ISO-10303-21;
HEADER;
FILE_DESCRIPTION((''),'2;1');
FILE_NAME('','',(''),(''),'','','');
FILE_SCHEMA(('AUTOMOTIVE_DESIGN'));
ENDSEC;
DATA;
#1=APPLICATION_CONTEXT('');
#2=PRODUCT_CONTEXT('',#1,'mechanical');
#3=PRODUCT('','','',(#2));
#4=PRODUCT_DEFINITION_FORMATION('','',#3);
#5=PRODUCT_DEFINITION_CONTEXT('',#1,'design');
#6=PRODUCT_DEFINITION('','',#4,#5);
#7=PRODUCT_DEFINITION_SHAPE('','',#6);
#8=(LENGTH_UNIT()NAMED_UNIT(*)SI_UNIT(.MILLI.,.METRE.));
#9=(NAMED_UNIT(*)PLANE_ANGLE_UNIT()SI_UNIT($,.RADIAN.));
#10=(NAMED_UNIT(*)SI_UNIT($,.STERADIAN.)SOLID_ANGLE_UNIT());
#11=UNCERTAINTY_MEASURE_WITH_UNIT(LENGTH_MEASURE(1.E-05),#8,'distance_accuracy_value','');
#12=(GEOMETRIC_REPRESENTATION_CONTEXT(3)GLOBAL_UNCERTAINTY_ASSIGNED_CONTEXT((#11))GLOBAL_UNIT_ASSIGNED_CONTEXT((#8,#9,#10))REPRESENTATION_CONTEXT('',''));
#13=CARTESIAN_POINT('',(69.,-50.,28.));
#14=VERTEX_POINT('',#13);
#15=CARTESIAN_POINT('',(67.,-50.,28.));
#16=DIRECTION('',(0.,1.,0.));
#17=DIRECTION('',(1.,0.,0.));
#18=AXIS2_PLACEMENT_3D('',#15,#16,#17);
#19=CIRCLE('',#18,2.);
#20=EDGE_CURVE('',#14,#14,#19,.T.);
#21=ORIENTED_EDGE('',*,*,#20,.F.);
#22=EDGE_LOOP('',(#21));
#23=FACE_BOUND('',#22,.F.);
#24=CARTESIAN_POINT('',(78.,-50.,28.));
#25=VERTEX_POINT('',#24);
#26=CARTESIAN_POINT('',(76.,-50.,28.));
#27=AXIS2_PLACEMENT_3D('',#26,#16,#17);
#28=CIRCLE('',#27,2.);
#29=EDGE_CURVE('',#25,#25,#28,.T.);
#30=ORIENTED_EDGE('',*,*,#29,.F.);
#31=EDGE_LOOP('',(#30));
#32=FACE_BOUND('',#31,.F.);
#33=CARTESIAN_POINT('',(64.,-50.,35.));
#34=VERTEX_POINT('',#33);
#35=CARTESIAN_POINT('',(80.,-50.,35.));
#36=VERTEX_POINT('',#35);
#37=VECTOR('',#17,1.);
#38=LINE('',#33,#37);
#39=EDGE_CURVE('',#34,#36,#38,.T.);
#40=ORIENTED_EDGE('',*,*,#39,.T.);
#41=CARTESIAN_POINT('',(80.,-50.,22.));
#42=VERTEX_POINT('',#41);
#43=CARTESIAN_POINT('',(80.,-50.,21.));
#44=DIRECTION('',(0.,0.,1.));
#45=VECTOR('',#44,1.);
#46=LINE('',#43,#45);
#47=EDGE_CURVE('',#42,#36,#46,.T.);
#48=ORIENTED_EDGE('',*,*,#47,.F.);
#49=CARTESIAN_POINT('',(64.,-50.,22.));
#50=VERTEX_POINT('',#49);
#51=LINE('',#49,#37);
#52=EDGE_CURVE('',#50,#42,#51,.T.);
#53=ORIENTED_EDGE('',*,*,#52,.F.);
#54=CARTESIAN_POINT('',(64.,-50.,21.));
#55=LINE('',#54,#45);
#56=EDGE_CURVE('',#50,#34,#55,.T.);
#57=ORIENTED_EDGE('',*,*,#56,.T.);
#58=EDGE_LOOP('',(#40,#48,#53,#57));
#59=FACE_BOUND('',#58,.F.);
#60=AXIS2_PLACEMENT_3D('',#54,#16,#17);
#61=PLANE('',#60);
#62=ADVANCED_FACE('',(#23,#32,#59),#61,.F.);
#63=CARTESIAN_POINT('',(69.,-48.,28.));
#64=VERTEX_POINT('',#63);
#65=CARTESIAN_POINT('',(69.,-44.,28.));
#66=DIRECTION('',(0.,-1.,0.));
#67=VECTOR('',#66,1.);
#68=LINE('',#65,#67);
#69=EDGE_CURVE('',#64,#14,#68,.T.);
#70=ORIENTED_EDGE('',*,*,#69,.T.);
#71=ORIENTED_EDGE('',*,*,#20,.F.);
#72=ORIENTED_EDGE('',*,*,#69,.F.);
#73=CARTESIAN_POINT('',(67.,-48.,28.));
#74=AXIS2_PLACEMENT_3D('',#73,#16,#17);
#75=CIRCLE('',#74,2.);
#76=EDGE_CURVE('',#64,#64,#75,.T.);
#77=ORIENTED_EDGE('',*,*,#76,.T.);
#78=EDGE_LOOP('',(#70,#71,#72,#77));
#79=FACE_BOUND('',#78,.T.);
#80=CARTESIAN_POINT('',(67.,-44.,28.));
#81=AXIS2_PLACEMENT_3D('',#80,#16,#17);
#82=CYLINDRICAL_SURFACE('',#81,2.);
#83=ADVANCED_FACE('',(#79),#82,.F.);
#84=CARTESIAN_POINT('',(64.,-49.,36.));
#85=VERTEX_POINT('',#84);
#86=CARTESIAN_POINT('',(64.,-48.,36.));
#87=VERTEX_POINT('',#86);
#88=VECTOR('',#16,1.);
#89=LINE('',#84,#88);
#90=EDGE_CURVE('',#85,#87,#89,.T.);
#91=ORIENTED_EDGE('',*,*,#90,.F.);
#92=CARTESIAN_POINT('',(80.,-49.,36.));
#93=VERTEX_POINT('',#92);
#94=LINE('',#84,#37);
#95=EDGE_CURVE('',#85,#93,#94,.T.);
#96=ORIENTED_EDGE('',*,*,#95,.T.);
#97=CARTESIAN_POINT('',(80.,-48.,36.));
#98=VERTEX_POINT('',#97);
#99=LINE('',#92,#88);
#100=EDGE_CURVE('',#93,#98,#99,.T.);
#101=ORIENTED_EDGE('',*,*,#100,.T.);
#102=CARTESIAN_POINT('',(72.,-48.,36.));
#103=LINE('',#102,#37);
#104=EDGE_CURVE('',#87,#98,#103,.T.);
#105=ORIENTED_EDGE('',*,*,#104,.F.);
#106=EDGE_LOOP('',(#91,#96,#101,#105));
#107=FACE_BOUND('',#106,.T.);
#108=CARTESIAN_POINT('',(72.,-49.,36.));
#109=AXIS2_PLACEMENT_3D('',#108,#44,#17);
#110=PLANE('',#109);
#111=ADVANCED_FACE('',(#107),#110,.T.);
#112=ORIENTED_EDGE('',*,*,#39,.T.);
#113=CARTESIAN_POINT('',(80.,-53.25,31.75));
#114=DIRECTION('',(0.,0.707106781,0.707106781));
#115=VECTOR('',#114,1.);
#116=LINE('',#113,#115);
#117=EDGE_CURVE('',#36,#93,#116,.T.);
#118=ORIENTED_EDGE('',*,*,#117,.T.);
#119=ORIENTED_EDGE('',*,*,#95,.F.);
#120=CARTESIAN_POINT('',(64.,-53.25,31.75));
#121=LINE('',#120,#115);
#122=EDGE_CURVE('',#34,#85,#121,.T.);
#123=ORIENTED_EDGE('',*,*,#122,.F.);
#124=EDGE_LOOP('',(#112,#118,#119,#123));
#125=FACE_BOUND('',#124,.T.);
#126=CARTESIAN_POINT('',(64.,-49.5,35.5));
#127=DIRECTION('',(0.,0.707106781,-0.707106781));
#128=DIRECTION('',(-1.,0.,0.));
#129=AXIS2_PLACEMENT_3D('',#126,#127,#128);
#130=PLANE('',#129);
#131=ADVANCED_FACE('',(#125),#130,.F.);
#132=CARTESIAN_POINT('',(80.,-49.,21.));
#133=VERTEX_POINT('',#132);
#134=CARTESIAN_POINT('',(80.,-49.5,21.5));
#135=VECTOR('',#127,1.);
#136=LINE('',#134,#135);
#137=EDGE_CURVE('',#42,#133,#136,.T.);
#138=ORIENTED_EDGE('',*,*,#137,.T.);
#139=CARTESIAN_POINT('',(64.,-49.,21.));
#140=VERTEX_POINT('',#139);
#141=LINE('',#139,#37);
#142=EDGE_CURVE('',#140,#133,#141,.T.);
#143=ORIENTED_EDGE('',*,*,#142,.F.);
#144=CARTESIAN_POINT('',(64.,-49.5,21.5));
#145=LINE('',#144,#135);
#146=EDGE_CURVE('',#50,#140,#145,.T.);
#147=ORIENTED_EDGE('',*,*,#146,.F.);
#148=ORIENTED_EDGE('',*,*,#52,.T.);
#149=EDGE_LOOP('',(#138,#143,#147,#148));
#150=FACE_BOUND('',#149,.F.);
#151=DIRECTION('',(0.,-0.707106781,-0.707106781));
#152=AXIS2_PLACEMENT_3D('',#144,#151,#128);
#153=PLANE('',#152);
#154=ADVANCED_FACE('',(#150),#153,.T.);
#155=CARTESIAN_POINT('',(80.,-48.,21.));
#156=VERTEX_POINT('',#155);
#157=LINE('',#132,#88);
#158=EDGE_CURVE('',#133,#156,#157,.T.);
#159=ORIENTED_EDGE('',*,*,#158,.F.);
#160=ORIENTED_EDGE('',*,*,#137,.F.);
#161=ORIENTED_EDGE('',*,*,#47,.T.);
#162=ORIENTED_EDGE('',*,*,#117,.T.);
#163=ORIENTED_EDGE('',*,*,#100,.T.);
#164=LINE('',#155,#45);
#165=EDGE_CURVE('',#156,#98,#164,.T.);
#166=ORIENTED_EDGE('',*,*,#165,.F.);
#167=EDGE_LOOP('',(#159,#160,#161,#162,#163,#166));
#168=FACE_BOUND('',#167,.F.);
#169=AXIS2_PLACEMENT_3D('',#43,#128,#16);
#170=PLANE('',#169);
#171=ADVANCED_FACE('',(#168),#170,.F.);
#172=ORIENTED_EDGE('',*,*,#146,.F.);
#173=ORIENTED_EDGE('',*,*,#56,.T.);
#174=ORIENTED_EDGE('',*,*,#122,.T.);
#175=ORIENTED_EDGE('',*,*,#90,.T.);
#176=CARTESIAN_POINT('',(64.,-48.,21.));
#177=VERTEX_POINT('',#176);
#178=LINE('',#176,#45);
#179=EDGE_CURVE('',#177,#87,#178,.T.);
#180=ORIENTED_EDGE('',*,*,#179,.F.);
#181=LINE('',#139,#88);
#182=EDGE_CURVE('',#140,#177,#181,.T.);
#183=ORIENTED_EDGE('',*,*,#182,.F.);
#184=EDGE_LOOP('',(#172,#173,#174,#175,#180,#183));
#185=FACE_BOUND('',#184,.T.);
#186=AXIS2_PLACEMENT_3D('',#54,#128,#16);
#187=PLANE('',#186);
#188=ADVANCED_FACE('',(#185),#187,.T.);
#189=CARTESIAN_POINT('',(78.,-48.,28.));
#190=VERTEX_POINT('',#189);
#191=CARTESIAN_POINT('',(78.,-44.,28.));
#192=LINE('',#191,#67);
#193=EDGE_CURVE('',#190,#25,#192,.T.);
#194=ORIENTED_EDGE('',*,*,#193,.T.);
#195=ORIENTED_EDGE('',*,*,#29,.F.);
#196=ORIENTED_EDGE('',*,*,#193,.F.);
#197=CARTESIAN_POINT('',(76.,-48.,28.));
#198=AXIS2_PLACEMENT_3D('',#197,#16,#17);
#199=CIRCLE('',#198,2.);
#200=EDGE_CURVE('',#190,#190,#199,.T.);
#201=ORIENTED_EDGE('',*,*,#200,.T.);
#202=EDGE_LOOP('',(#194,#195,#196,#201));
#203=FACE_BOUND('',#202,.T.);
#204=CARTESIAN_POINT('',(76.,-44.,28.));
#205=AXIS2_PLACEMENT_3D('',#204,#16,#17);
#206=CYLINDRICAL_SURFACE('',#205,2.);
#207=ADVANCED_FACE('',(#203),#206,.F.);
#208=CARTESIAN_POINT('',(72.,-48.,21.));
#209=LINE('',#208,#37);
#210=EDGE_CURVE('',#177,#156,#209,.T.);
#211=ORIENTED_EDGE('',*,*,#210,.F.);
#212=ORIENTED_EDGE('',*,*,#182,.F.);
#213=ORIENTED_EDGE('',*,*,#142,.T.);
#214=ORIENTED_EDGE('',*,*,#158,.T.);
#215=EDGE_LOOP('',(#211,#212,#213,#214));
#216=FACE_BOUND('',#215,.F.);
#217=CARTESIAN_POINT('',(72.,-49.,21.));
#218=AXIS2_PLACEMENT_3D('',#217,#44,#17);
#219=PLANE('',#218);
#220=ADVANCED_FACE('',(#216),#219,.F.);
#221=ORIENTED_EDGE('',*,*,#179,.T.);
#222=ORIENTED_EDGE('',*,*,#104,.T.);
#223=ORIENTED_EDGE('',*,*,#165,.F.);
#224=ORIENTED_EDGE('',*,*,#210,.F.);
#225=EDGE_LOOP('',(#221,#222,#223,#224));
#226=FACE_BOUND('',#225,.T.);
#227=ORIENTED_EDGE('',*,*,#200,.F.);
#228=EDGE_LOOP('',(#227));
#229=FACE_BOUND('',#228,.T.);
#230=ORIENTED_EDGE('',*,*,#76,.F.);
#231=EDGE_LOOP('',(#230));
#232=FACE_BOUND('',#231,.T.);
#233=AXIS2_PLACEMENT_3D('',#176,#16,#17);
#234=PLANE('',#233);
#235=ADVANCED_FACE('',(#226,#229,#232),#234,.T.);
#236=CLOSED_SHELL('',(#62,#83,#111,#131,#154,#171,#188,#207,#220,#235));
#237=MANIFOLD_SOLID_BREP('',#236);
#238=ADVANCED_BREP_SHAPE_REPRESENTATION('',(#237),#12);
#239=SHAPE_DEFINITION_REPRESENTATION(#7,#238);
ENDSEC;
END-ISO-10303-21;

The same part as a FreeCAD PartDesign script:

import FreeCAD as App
import Part
import Sketcher
from FreeCAD import Vector
Q = App.Units.Quantity


def edges_at(feature, points):
    """Names of the edges that pass closest to the given points."""
    edges = feature.Shape.Edges
    near = lambda p: min(range(len(edges)), key=lambda i: edges[i].distToShape(Part.Vertex(*p))[0])
    return sorted({f"Edge{near(p) + 1}" for p in points})

doc = App.newDocument("Part")
body = doc.addObject("PartDesign::Body", "Body")

sketch1 = body.newObject("Sketcher::SketchObject", "Sketch")
sketch1.AttachmentSupport = (doc.getObject("XY_Plane"), [""])
sketch1.MapMode = "FlatFace"
sketch1.addGeometry(Part.Circle(Vector(0, 0, 0), Vector(0, 0, 1), 2), False)
sketch1.addConstraint([
    Sketcher.Constraint("Coincident", 0, 3, -1, 1),
    Sketcher.Constraint("Diameter", 0, Q("4 mm")),
])
pad1 = body.newObject("PartDesign::Pad", "Pad")
pad1.Profile = sketch1
pad1.Length = 10
body2 = doc.addObject("PartDesign::Body", "Body001")
doc.recompute()

body.Placement = App.Placement(Vector(0, 0, 0), App.Rotation(Vector(1, 0, 0), 90))
boolean = body2.newObject("PartDesign::Boolean", "Boolean")
boolean.Type = "Fuse"
boolean.addObjects([body])
body3 = doc.addObject("PartDesign::Body", "Body002")
doc.recompute()

body2.Placement = App.Placement(Vector(76, -37, 30), App.Rotation(Vector(0, 0, 1), 0))
boolean2 = body3.newObject("PartDesign::Boolean", "Boolean001")
boolean2.Type = "Fuse"
boolean2.addObjects([body2])
body4 = doc.addObject("PartDesign::Body", "Body003")

sketch2 = body4.newObject("Sketcher::SketchObject", "Sketch001")
sketch2.AttachmentSupport = (doc.getObject("XY_Plane003"), [""])
sketch2.MapMode = "FlatFace"
sketch2.addGeometry(Part.Circle(Vector(0, 0, 0), Vector(0, 0, 1), 2), False)
sketch2.addConstraint([
    Sketcher.Constraint("Coincident", 0, 3, -1, 1),
    Sketcher.Constraint("Diameter", 0, Q("4 mm")),
])
pad2 = body4.newObject("PartDesign::Pad", "Pad001")
pad2.Profile = sketch2
pad2.Length = 10
body5 = doc.addObject("PartDesign::Body", "Body004")
doc.recompute()

body4.Placement = App.Placement(Vector(0, 0, 0), App.Rotation(Vector(1, 0, 0), 90))
boolean3 = body5.newObject("PartDesign::Boolean", "Boolean002")
boolean3.Type = "Fuse"
boolean3.addObjects([body4])
body6 = doc.addObject("PartDesign::Body", "Body005")
body6.AllowCompound = True
doc.recompute()

body5.Placement = App.Placement(Vector(67, -37, 30), App.Rotation(Vector(0, 0, 1), 0))
boolean4 = body6.newObject("PartDesign::Boolean", "Boolean003")
boolean4.Type = "Fuse"
boolean4.addObjects([body5])
doc.recompute()

boolean5 = body6.newObject("PartDesign::Boolean", "Boolean004")
boolean5.Type = "Fuse"
boolean5.addObjects([body3])
body7 = doc.addObject("PartDesign::Body", "Body006")

sketch3 = body7.newObject("Sketcher::SketchObject", "Sketch002")
sketch3.AttachmentSupport = (doc.getObject("XY_Plane006"), [""])
sketch3.MapMode = "FlatFace"
sketch3.AttachmentOffset = App.Placement(Vector(0, 0, 23), App.Rotation())
sketch3.addGeometry([
    Part.LineSegment(Vector(64, -41, 0), Vector(64, -43, 0)),
    Part.LineSegment(Vector(64, -43, 0), Vector(80, -43, 0)),
    Part.LineSegment(Vector(80, -43, 0), Vector(80, -41, 0)),
    Part.LineSegment(Vector(80, -41, 0), Vector(64, -41, 0)),
], False)
sketch3.addConstraint([
    Sketcher.Constraint("Coincident", 0, 2, 1, 1),
    Sketcher.Constraint("Coincident", 1, 2, 2, 1),
    Sketcher.Constraint("Coincident", 2, 2, 3, 1),
    Sketcher.Constraint("Coincident", 3, 2, 0, 1),
    Sketcher.Constraint("Vertical", 0),
    Sketcher.Constraint("Horizontal", 1),
    Sketcher.Constraint("Vertical", 2),
    Sketcher.Constraint("Horizontal", 3),
    Sketcher.Constraint("DistanceX", 1, 1, 1, 2, Q("16 mm")),
    Sketcher.Constraint("DistanceY", 0, 2, 0, 1, Q("2 mm")),
    Sketcher.Constraint("DistanceX", -1, 1, 0, 2, Q("64 mm")),
    Sketcher.Constraint("DistanceY", 0, 2, -1, 1, Q("43 mm")),
])
pad3 = body7.newObject("PartDesign::Pad", "Pad002")
pad3.Profile = sketch3
pad3.Length = 15
doc.recompute()

boolean6 = body7.newObject("PartDesign::Boolean", "Boolean005")
boolean6.Type = "Cut"
boolean6.addObjects([body6])
body8 = doc.addObject("PartDesign::Body", "Body007")
doc.recompute()

body7.Placement = App.Placement(Vector(0, -7, -2), App.Rotation(Vector(0, 0, 1), 0))
boolean7 = body8.newObject("PartDesign::Boolean", "Boolean006")
boolean7.Type = "Fuse"
boolean7.addObjects([body7])
doc.recompute()

chamfer = body8.newObject("PartDesign::Chamfer", "Chamfer")
chamfer.Base = (boolean7, edges_at(boolean7, [(72, -50, 21), (72, -50, 36)]))
chamfer.Size = 1

doc.recompute()
